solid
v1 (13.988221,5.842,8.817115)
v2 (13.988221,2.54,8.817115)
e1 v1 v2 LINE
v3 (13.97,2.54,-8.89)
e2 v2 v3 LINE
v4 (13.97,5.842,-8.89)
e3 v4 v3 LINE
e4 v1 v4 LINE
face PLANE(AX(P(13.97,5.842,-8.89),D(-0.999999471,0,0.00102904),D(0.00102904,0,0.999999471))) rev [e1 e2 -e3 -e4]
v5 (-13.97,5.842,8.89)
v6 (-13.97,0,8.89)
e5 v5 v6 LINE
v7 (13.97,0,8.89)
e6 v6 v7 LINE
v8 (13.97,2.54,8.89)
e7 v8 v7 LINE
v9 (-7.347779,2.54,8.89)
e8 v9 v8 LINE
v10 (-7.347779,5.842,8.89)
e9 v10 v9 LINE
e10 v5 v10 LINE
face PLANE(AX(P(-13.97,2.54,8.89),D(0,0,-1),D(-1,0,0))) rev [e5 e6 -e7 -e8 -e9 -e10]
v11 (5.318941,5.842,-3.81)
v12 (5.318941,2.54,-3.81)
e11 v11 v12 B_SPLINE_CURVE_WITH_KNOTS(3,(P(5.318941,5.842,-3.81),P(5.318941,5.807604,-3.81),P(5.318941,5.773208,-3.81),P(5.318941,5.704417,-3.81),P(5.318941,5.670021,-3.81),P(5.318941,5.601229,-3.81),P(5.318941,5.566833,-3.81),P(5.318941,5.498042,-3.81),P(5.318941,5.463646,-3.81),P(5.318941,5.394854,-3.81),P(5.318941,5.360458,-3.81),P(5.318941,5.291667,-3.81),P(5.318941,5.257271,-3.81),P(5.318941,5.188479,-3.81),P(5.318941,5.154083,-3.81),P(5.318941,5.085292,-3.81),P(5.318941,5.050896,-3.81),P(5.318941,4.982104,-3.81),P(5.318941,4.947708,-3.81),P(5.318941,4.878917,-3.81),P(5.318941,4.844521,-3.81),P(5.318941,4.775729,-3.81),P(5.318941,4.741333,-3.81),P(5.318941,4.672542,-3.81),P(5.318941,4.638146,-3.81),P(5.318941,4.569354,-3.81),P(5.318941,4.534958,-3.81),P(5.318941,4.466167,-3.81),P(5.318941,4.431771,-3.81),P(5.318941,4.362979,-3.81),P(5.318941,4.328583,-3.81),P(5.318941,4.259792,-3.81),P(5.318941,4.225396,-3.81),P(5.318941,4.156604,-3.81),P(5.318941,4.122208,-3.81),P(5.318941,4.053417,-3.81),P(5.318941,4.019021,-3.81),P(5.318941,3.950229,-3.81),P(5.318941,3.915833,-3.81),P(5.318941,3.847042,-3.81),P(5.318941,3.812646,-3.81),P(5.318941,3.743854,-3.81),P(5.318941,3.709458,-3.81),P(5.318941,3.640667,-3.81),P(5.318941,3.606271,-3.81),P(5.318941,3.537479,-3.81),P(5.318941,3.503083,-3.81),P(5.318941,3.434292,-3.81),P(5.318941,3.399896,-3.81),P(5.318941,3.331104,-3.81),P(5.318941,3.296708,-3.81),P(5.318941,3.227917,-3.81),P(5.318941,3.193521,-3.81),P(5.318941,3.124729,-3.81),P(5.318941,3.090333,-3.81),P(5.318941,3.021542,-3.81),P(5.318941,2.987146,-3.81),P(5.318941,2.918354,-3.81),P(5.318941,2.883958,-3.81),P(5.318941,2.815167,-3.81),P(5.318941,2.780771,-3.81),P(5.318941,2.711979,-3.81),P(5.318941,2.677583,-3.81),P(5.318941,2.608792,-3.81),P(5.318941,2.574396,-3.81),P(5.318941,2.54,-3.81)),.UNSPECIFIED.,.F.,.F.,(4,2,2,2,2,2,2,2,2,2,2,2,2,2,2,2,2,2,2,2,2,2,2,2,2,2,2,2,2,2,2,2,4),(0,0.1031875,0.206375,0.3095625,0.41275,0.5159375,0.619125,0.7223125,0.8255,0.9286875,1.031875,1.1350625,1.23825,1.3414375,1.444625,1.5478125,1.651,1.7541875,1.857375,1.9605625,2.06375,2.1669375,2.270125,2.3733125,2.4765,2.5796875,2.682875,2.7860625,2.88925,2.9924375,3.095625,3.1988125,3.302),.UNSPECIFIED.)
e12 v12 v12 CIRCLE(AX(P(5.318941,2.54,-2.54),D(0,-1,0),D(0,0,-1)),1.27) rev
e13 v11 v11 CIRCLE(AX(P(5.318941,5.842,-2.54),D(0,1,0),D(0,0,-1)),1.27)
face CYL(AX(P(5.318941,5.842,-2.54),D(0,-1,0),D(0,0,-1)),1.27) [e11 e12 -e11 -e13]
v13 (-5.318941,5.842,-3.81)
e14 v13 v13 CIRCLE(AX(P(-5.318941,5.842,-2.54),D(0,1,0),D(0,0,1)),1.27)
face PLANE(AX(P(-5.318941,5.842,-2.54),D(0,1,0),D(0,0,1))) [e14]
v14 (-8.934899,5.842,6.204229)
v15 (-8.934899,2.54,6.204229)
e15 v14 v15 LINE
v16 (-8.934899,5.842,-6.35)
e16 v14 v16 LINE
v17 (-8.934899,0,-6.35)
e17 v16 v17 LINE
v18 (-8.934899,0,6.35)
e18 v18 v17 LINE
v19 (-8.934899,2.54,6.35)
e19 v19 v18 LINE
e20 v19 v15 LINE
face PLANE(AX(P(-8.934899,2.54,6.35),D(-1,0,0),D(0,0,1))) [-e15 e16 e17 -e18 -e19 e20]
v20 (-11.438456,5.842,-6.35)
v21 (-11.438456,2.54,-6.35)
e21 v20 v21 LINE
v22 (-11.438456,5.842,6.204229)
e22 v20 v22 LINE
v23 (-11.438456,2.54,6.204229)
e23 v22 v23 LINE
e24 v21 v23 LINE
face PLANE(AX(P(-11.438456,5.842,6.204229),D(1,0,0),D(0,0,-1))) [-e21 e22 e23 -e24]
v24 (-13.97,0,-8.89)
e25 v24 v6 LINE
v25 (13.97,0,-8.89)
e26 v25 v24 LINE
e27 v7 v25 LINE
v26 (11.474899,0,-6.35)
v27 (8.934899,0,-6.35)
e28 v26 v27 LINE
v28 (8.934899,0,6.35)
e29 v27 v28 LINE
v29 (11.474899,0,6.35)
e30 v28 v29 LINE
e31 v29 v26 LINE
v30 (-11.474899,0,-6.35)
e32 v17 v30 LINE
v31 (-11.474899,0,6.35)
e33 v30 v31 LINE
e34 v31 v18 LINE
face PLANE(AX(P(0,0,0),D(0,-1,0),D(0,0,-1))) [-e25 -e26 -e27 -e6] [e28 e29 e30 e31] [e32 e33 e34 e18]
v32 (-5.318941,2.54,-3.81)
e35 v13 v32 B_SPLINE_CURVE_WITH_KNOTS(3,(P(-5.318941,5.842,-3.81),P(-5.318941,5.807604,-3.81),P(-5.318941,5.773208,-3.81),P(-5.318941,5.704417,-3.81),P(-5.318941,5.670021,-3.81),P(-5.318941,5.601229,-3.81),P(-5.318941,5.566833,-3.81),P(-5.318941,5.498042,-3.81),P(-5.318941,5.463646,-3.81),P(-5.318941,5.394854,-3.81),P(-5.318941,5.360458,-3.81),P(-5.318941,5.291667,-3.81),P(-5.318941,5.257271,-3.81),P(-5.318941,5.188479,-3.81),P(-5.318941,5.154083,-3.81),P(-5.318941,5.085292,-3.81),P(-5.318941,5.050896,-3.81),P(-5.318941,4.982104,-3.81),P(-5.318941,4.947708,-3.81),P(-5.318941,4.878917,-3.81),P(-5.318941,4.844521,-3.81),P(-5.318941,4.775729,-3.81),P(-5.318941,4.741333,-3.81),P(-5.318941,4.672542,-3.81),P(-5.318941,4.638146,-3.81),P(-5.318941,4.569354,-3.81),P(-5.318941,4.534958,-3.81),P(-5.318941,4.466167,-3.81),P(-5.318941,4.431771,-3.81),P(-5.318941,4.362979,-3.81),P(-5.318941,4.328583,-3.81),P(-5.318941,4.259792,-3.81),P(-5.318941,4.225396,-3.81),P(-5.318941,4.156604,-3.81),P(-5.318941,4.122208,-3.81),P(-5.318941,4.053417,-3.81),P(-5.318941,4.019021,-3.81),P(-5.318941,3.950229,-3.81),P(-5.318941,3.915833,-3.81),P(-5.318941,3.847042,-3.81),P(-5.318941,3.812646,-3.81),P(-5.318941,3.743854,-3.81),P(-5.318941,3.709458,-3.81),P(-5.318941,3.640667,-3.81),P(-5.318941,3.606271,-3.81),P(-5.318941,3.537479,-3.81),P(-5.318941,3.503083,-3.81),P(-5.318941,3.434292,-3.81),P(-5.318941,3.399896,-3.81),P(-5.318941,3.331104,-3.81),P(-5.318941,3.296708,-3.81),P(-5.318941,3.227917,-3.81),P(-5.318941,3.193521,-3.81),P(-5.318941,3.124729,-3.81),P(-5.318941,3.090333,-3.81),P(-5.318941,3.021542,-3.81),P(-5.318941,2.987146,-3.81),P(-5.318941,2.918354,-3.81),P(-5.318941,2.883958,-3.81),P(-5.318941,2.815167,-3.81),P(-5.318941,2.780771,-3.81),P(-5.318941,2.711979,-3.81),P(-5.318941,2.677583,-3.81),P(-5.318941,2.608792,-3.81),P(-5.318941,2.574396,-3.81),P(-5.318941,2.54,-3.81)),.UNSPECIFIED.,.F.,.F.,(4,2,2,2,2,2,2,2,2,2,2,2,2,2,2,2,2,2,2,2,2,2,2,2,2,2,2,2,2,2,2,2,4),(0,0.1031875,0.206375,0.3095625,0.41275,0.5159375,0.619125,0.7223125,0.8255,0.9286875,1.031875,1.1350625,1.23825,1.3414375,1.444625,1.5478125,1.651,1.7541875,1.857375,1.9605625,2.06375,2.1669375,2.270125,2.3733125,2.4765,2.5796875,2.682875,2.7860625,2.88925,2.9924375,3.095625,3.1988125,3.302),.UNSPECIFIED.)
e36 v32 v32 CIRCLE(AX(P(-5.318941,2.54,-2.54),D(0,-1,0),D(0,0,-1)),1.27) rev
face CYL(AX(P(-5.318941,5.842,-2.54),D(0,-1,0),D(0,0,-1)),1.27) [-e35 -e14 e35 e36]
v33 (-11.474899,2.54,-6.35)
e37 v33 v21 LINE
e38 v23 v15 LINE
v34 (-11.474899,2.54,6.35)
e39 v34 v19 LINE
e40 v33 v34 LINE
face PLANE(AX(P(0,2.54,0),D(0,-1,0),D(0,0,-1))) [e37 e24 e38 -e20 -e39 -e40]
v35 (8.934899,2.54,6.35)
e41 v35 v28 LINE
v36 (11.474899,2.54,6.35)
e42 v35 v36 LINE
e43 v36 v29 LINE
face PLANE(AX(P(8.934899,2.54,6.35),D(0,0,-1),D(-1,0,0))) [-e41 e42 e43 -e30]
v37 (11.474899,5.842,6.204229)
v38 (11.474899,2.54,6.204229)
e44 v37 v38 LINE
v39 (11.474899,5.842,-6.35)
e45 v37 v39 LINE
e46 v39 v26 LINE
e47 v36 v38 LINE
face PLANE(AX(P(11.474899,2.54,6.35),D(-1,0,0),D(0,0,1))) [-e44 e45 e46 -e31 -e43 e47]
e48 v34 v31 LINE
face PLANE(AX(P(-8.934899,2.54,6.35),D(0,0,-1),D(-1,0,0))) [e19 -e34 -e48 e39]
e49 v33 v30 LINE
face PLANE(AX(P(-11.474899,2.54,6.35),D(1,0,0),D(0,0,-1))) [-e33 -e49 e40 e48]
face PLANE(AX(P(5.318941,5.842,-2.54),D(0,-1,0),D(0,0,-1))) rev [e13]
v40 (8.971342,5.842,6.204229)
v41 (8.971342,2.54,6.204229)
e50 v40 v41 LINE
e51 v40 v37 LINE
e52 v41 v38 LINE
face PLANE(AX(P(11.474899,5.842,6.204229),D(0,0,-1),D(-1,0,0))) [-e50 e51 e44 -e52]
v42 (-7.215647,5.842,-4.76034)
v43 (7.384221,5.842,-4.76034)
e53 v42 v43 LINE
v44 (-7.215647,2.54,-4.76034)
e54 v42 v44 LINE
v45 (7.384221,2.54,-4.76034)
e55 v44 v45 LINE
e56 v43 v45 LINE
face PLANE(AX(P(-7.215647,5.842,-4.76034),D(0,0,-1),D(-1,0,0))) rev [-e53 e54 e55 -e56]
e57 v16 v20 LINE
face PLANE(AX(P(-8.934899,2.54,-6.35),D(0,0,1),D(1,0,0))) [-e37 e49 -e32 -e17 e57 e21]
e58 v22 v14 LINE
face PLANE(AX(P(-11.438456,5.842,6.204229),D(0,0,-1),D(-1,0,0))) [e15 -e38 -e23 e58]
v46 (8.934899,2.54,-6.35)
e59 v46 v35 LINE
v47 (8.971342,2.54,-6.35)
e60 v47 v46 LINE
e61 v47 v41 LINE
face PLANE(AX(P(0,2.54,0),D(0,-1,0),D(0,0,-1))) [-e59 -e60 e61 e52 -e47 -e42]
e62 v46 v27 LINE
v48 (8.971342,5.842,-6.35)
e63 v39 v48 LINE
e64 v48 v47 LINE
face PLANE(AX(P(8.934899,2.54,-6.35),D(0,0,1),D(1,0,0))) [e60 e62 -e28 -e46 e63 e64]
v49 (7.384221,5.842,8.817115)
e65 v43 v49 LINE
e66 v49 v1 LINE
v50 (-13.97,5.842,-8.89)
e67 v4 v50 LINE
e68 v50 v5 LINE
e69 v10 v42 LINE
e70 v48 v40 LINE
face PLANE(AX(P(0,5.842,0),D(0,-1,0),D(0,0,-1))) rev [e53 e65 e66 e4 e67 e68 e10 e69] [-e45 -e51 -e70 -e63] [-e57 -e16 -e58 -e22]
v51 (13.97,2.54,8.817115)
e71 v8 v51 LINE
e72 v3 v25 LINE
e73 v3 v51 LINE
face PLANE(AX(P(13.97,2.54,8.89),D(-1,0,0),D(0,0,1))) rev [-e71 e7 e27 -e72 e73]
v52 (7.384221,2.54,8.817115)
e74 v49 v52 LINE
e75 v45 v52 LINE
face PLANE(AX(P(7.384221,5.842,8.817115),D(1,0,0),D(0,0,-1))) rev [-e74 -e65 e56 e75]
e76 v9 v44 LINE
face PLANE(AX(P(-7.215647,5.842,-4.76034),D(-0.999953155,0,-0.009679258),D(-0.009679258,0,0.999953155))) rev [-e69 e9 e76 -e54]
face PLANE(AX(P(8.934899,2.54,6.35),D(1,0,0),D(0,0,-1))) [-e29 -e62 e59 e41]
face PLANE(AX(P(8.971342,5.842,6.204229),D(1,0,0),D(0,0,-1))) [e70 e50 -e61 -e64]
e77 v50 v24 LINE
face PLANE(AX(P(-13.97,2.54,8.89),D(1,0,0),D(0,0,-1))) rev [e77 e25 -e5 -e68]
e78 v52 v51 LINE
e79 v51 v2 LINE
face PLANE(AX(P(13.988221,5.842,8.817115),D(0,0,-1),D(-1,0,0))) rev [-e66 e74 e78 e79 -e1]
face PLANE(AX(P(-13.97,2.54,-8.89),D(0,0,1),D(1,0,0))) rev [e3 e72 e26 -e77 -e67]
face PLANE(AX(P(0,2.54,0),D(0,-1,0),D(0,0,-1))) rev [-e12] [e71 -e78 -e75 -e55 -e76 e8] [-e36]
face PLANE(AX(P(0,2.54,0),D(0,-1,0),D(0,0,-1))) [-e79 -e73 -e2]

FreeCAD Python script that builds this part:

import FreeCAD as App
import Part
import Sketcher
from FreeCAD import Vector
Q = App.Units.Quantity

doc = App.newDocument("Part")
params = doc.addObject("Spreadsheet::Sheet", "Params")
for row, (alias, value) in enumerate([
    ("sketch1_width", "1.1 in"),
    ("sketch1_width2", "0.1 in"),
    ("sketch1_height", "0.7 in"),
    ("sketch1_height2", "0.5 in"),
    ("pad1_length", "0.1 in"),
    ("sketch2_diameter", "0.1 in"),
    ("pad2_length", "0.13 in"),
    ("sketch3_width", "1.1 in"),
    ("sketch3_height", "0.7 in"),
    ("sketch3_width2", "0.26 in"),
    ("pad3_length", "0.13 in"),
], start=1):
    params.set(f"A{row}", alias)
    params.set(f"B{row}", "=" + value)
    params.setAlias(f"B{row}", alias)

body = doc.addObject("PartDesign::Body", "Body")

# Sketch on XZ plane
sketch1 = body.newObject("Sketcher::SketchObject", "Sketch")
sketch1.AttachmentSupport = (doc.getObject("XZ_Plane"), [""])
sketch1.MapMode = "FlatFace"
sketch1.addGeometry([
    Part.LineSegment(Vector(-14, -8.9, 0), Vector(-14, 8.9, 0)),  # 0
    Part.LineSegment(Vector(-14, 8.9, 0), Vector(14, 8.9, 0)),  # 1
    Part.LineSegment(Vector(14, 8.9, 0), Vector(14, -8.9, 0)),  # 2
    Part.LineSegment(Vector(14, -8.9, 0), Vector(-14, -8.9, 0)),  # 3
    Part.LineSegment(Vector(-8.9, 6.3, 0), Vector(-11.5, 6.3, 0)),  # 4
    Part.LineSegment(Vector(-11.5, 6.3, 0), Vector(-11.5, -6.3, 0)),  # 5
    Part.LineSegment(Vector(-11.5, -6.3, 0), Vector(-8.9, -6.3, 0)),  # 6
    Part.LineSegment(Vector(-8.9, -6.3, 0), Vector(-8.9, 6.3, 0)),  # 7
    Part.LineSegment(Vector(11.5, 6.3, 0), Vector(8.9, 6.3, 0)),  # 8
    Part.LineSegment(Vector(8.9, 6.3, 0), Vector(8.9, -6.3, 0)),  # 9
    Part.LineSegment(Vector(8.9, -6.3, 0), Vector(11.5, -6.3, 0)),  # 10
    Part.LineSegment(Vector(11.5, -6.3, 0), Vector(11.5, 6.3, 0)),  # 11
], False)
sketch1.addConstraint([
    Sketcher.Constraint("Coincident", 0, 2, 1, 1),
    Sketcher.Constraint("Coincident", 1, 2, 2, 1),
    Sketcher.Constraint("Coincident", 2, 2, 3, 1),
    Sketcher.Constraint("Coincident", 3, 2, 0, 1),
    Sketcher.Constraint("Coincident", 4, 2, 5, 1),
    Sketcher.Constraint("Coincident", 5, 2, 6, 1),
    Sketcher.Constraint("Coincident", 6, 2, 7, 1),
    Sketcher.Constraint("Coincident", 7, 2, 4, 1),
    Sketcher.Constraint("Coincident", 8, 2, 9, 1),
    Sketcher.Constraint("Coincident", 9, 2, 10, 1),
    Sketcher.Constraint("Coincident", 10, 2, 11, 1),
    Sketcher.Constraint("Coincident", 11, 2, 8, 1),
    Sketcher.Constraint("Vertical", 0),
    Sketcher.Constraint("Horizontal", 1),
    Sketcher.Constraint("Vertical", 2),
    Sketcher.Constraint("Horizontal", 3),
    Sketcher.Constraint("Horizontal", 4),
    Sketcher.Constraint("Vertical", 5),
    Sketcher.Constraint("Horizontal", 6),
    Sketcher.Constraint("Vertical", 7),
    Sketcher.Constraint("Horizontal", 8),
    Sketcher.Constraint("Vertical", 9),
    Sketcher.Constraint("Horizontal", 10),
    Sketcher.Constraint("Vertical", 11),
    Sketcher.Constraint("Symmetric", 0, 2, 2, 2, -1, 1),
    Sketcher.Constraint("Symmetric", 6, 2, 8, 2, -1, 1),
    Sketcher.Constraint("Symmetric", 4, 2, 10, 2, -1, 1),
    Sketcher.Constraint("Horizontal", 7, 2, 8, 2),
    Sketcher.Constraint("DistanceX", 1, 1, 1, 2, Q("1.1 in")),
    Sketcher.Constraint("DistanceX", 4, 2, 4, 1, Q("0.1 in")),
    Sketcher.Constraint("DistanceY", 0, 1, 0, 2, Q("0.7 in")),
    Sketcher.Constraint("DistanceY", 5, 2, 5, 1, Q("0.5 in")),
    Sketcher.Constraint("DistanceX", 4, 2, -1, 1, 11.474899),
])
sketch1.setExpression("Constraints[28]", "Params.sketch1_width")
sketch1.setExpression("Constraints[29]", "Params.sketch1_width2")
sketch1.setExpression("Constraints[30]", "Params.sketch1_height")
sketch1.setExpression("Constraints[31]", "Params.sketch1_height2")
pad1 = body.newObject("PartDesign::Pad", "Pad")
pad1.Profile = sketch1
pad1.setExpression("Length", "Params.pad1_length")
pad1.Reversed = True

# Sketch on XZ plane
sketch2 = body.newObject("Sketcher::SketchObject", "Sketch001")
sketch2.AttachmentSupport = (doc.getObject("XZ_Plane"), [""])
sketch2.MapMode = "FlatFace"
sketch2.AttachmentOffset = App.Placement(Vector(0, 0, -0.1 * 25.4), App.Rotation())
sketch2.addGeometry([
    Part.Circle(Vector(-5.3, -2.5, 0), Vector(0, 0, 1), 1.3),
    Part.Circle(Vector(5.3, -2.5, 0), Vector(0, 0, 1), 1.3),
], False)
sketch2.addConstraint([
    Sketcher.Constraint("Equal", 0, 1),
    Sketcher.Constraint("Symmetric", 0, 3, 1, 3, -2),
    Sketcher.Constraint("Diameter", 0, Q("0.1 in")),
    Sketcher.Constraint("DistanceY", 0, 3, -1, 1, Q("0.1 in")),
    Sketcher.Constraint("DistanceX", 0, 3, -1, 1, 5.318941),
])
sketch2.setExpression("Constraints[2]", "Params.sketch2_diameter")
pad2 = body.newObject("PartDesign::Pad", "Pad001")
pad2.Profile = sketch2
pad2.setExpression("Length", "Params.pad2_length")
pad2.Reversed = True

# Sketch on XZ plane
sketch3 = body.newObject("Sketcher::SketchObject", "Sketch002")
sketch3.AttachmentSupport = (doc.getObject("XZ_Plane"), [""])
sketch3.MapMode = "FlatFace"
sketch3.AttachmentOffset = App.Placement(Vector(0, 0, -0.1 * 25.4), App.Rotation())
sketch3.addGeometry([
    Part.LineSegment(Vector(-7.2, -4.8, 0), Vector(7.4, -4.8, 0)),  # 0
    Part.LineSegment(Vector(7.4, -4.8, 0), Vector(7.4, 8.8, 0)),  # 1
    Part.LineSegment(Vector(7.4, 8.8, 0), Vector(14, 8.8, 0)),  # 2
    Part.LineSegment(Vector(14, 8.8, 0), Vector(14, -8.9, 0)),  # 3
    Part.LineSegment(Vector(14, -8.9, 0), Vector(-14, -8.9, 0)),  # 4
    Part.LineSegment(Vector(-14, -8.9, 0), Vector(-14, 8.9, 0)),  # 5
    Part.LineSegment(Vector(-14, 8.9, 0), Vector(-7.3, 8.9, 0)),  # 6
    Part.LineSegment(Vector(-7.3, 8.9, 0), Vector(-7.2, -4.8, 0)),  # 7
    Part.LineSegment(Vector(-8.9, 6.2, 0), Vector(-11.4, 6.2, 0)),  # 8
    Part.LineSegment(Vector(-11.4, 6.2, 0), Vector(-11.4, -6.3, 0)),  # 9
    Part.LineSegment(Vector(-11.4, -6.3, 0), Vector(-8.9, -6.3, 0)),  # 10
    Part.LineSegment(Vector(-8.9, -6.3, 0), Vector(-8.9, 6.2, 0)),  # 11
    Part.LineSegment(Vector(11.5, 6.2, 0), Vector(9, 6.2, 0)),  # 12
    Part.LineSegment(Vector(9, 6.2, 0), Vector(9, -6.3, 0)),  # 13
    Part.LineSegment(Vector(9, -6.3, 0), Vector(11.5, -6.3, 0)),  # 14
    Part.LineSegment(Vector(11.5, -6.3, 0), Vector(11.5, 6.2, 0)),  # 15
], False)
sketch3.addConstraint([
    Sketcher.Constraint("Coincident", 0, 2, 1, 1),
    Sketcher.Constraint("Coincident", 1, 2, 2, 1),
    Sketcher.Constraint("Coincident", 2, 2, 3, 1),
    Sketcher.Constraint("Coincident", 3, 2, 4, 1),
    Sketcher.Constraint("Coincident", 4, 2, 5, 1),
    Sketcher.Constraint("Coincident", 5, 2, 6, 1),
    Sketcher.Constraint("Coincident", 6, 2, 7, 1),
    Sketcher.Constraint("Coincident", 7, 2, 0, 1),
    Sketcher.Constraint("Coincident", 8, 2, 9, 1),
    Sketcher.Constraint("Coincident", 9, 2, 10, 1),
    Sketcher.Constraint("Coincident", 10, 2, 11, 1),
    Sketcher.Constraint("Coincident", 11, 2, 8, 1),
    Sketcher.Constraint("Coincident", 12, 2, 13, 1),
    Sketcher.Constraint("Coincident", 13, 2, 14, 1),
    Sketcher.Constraint("Coincident", 14, 2, 15, 1),
    Sketcher.Constraint("Coincident", 15, 2, 12, 1),
    Sketcher.Constraint("Horizontal", 0),
    Sketcher.Constraint("Vertical", 1),
    Sketcher.Constraint("Horizontal", 2),
    Sketcher.Constraint("Horizontal", 4),
    Sketcher.Constraint("Vertical", 5),
    Sketcher.Constraint("Horizontal", 6),
    Sketcher.Constraint("Horizontal", 8),
    Sketcher.Constraint("Vertical", 9),
    Sketcher.Constraint("Horizontal", 10),
    Sketcher.Constraint("Vertical", 11),
    Sketcher.Constraint("Horizontal", 12),
    Sketcher.Constraint("Vertical", 13),
    Sketcher.Constraint("Horizontal", 14),
    Sketcher.Constraint("Vertical", 15),
    Sketcher.Constraint("Symmetric", 3, 2, 5, 2, -1, 1),
    Sketcher.Constraint("Horizontal", 11, 2, 12, 2),
    Sketcher.Constraint("Horizontal", 10, 2, 13, 2),
    Sketcher.Constraint("Equal", 10, 12),
    Sketcher.Constraint("DistanceX", 4, 2, 4, 1, Q("1.1 in")),
    Sketcher.Constraint("DistanceY", 5, 1, 5, 2, Q("0.7 in")),
    Sketcher.Constraint("DistanceX", 2, 1, 2, 2, Q("0.26 in")),
    Sketcher.Constraint("DistanceY", 4, 2, 9, 2, Q("0.1 in")),
    Sketcher.Constraint("DistanceX", 6, 2, 1, 2, Q("0.58 in")),
    Sketcher.Constraint("DistanceX", 0, 1, 0, 2, 14.599869),
    Sketcher.Constraint("DistanceX", 6, 1, 6, 2, 6.622221),
    Sketcher.Constraint("DistanceY", 9, 2, 9, 1, 12.554229),
    Sketcher.Constraint("DistanceX", 10, 2, -1, 1, 8.934899),
    Sketcher.Constraint("DistanceX", -1, 1, 14, 2, 11.474899),
    Sketcher.Constraint("Distance", 7, 13.650979),
    Sketcher.Constraint("DistanceX", 8, 2, 8, 1, 2.503557),
    Sketcher.Constraint("DistanceY", 1, 1, 1, 2, 13.577455),
])
sketch3.setExpression("Constraints[34]", "Params.sketch3_width")
sketch3.setExpression("Constraints[35]", "Params.sketch3_height")
sketch3.setExpression("Constraints[36]", "Params.sketch3_width2")
pad3 = body.newObject("PartDesign::Pad", "Pad002")
pad3.Profile = sketch3
pad3.setExpression("Length", "Params.pad3_length")
pad3.Reversed = True

doc.recompute()
